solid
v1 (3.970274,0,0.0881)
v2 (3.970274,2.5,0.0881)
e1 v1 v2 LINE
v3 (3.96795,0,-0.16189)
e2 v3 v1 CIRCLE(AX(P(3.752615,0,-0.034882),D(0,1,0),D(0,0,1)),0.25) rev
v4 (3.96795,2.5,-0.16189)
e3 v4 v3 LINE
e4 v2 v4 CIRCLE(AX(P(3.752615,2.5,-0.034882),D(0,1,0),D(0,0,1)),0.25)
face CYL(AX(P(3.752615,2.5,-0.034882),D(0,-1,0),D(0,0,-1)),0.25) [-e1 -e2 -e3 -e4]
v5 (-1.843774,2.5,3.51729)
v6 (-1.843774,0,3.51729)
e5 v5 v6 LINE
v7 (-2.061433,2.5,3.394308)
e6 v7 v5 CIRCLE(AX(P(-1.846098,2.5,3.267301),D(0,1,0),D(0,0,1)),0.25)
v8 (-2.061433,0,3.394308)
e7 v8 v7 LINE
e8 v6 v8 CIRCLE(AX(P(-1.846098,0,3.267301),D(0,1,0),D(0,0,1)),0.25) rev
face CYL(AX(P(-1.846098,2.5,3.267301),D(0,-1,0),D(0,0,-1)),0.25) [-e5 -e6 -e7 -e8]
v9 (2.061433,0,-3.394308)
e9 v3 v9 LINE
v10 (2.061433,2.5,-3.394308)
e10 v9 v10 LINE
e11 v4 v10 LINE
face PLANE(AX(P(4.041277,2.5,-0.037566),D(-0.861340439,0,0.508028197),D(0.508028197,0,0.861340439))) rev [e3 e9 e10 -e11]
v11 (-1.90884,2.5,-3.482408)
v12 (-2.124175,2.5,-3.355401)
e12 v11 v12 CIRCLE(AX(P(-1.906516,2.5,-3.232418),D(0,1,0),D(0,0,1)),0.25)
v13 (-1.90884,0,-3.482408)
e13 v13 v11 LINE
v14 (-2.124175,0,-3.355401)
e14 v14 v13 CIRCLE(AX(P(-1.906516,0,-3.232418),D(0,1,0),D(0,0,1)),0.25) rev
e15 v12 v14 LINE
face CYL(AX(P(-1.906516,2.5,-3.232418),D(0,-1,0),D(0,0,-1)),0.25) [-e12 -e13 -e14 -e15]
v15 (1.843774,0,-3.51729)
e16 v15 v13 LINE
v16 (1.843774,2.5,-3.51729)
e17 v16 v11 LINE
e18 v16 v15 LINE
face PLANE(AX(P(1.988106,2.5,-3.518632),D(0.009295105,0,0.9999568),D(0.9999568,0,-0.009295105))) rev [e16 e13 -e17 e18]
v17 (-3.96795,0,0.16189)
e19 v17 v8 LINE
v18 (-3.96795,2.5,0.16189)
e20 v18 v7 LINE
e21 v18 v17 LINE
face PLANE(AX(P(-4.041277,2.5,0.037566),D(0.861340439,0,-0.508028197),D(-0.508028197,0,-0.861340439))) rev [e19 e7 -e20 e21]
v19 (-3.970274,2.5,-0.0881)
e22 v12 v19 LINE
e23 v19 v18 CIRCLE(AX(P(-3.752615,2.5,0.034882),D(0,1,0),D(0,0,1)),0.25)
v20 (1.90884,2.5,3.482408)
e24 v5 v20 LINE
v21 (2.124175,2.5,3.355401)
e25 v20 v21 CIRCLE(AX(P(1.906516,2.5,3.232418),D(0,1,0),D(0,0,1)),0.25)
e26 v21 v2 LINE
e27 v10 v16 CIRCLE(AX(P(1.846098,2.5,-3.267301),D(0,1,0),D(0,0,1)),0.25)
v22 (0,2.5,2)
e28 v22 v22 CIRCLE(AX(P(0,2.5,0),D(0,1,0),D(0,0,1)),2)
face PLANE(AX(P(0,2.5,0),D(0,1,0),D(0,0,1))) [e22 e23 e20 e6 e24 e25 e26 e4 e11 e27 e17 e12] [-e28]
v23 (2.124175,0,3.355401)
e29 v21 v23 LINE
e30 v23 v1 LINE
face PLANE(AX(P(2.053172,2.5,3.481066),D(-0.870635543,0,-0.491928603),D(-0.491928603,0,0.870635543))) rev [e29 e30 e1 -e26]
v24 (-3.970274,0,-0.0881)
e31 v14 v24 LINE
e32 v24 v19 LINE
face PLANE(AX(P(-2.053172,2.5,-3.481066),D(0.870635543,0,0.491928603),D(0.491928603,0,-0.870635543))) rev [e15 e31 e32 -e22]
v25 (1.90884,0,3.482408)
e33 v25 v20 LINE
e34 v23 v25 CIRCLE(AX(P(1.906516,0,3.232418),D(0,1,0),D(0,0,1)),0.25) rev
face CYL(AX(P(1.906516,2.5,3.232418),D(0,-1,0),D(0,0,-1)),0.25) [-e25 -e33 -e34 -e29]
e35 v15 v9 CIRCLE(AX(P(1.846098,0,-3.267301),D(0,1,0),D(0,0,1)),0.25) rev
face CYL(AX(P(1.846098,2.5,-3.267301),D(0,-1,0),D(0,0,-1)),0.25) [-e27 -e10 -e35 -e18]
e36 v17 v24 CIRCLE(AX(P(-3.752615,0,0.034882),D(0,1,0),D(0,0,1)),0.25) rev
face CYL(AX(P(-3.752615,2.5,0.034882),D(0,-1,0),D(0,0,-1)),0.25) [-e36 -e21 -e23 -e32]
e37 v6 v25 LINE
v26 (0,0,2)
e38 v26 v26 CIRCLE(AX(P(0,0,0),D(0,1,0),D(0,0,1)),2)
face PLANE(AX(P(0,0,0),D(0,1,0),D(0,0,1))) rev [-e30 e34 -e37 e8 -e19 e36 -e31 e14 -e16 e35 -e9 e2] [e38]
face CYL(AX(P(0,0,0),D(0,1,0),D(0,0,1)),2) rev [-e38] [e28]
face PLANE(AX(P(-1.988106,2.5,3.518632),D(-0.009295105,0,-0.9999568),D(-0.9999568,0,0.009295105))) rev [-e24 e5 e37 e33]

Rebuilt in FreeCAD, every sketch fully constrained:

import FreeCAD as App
import Part
import Sketcher
from FreeCAD import Vector
Q = App.Units.Quantity


def edges_at(feature, points):
    """Names of the edges that pass closest to the given points."""
    edges = feature.Shape.Edges
    near = lambda p: min(range(len(edges)), key=lambda i: edges[i].distToShape(Part.Vertex(*p))[0])
    return sorted({f"Edge{near(p) + 1}" for p in points})

doc = App.newDocument("Part")
body = doc.addObject("PartDesign::Body", "Body")

sketch1 = body.newObject("Sketcher::SketchObject", "Sketch")
sketch1.AttachmentSupport = (doc.getObject("XZ_Plane"), [""])
sketch1.MapMode = "FlatFace"
sketch1.addGeometry([
    Part.LineSegment(Vector(2, -3.5, 0), Vector(-2.1, -3.5, 0)),
    Part.LineSegment(Vector(-2.1, -3.5, 0), Vector(-4, 0, 0)),
    Part.LineSegment(Vector(-4, 0, 0), Vector(-2, 3.5, 0)),
    Part.LineSegment(Vector(-2, 3.5, 0), Vector(2.1, 3.5, 0)),
    Part.LineSegment(Vector(2.1, 3.5, 0), Vector(4, 0, 0)),
    Part.LineSegment(Vector(4, 0, 0), Vector(2, -3.5, 0)),
], False)
sketch1.addConstraint([
    Sketcher.Constraint("Coincident", 0, 2, 1, 1),
    Sketcher.Constraint("Coincident", 1, 2, 2, 1),
    Sketcher.Constraint("Coincident", 2, 2, 3, 1),
    Sketcher.Constraint("Coincident", 3, 2, 4, 1),
    Sketcher.Constraint("Coincident", 4, 2, 5, 1),
    Sketcher.Constraint("Coincident", 5, 2, 0, 1),
    Sketcher.Constraint("Symmetric", 0, 2, 3, 2, -1, 1),
    Sketcher.Constraint("Symmetric", 1, 2, 4, 2, -1, 1),
    Sketcher.Constraint("Symmetric", 2, 2, 5, 2, -1, 1),
    Sketcher.Constraint("Equal", 0, 1),
    Sketcher.Constraint("Equal", 1, 2),
    Sketcher.Constraint("DistanceY", 1, 2, 3, 2, Q("3.4435 mm")),
    Sketcher.Constraint("Distance", 0, Q("4.041452 mm")),
    Sketcher.Constraint("DistanceX", 0, 2, -1, 1, Q("2.053172 mm")),
    Sketcher.Constraint("DistanceY", -1, 1, 2, 2, Q("3.518632 mm")),
])
pad1 = body.newObject("PartDesign::Pad", "Pad")
pad1.Profile = sketch1
pad1.Length = 2.5
pad1.Reversed = True

sketch2 = body.newObject("Sketcher::SketchObject", "Sketch001")
sketch2.AttachmentSupport = (doc.getObject("XZ_Plane"), [""])
sketch2.MapMode = "FlatFace"
sketch2.AttachmentOffset = App.Placement(Vector(0, 0, -2.5), App.Rotation())
sketch2.addGeometry(Part.Circle(Vector(0, 0, 0), Vector(0, 0, 1), 2), False)
sketch2.addConstraint([
    Sketcher.Constraint("Coincident", 0, 3, -1, 1),
    Sketcher.Constraint("Diameter", 0, Q("4 mm")),
])
pocket1 = body.newObject("PartDesign::Pocket", "Pocket")
pocket1.Profile = sketch2
pocket1.Type = "ThroughAll"
pocket1.Reversed = True
doc.recompute()

fillet = body.newObject("PartDesign::Fillet", "Fillet")
fillet.Base = (pocket1, edges_at(pocket1, [
    (4.041, 1.25, -0.038),
    (2.053, 1.25, 3.481),
    (-1.988, 1.25, 3.519),
    (-4.041, 1.25, 0.038),
    (-2.053, 1.25, -3.481),
    (1.988, 1.25, -3.519),
]))
fillet.Radius = 0.25

doc.recompute()
